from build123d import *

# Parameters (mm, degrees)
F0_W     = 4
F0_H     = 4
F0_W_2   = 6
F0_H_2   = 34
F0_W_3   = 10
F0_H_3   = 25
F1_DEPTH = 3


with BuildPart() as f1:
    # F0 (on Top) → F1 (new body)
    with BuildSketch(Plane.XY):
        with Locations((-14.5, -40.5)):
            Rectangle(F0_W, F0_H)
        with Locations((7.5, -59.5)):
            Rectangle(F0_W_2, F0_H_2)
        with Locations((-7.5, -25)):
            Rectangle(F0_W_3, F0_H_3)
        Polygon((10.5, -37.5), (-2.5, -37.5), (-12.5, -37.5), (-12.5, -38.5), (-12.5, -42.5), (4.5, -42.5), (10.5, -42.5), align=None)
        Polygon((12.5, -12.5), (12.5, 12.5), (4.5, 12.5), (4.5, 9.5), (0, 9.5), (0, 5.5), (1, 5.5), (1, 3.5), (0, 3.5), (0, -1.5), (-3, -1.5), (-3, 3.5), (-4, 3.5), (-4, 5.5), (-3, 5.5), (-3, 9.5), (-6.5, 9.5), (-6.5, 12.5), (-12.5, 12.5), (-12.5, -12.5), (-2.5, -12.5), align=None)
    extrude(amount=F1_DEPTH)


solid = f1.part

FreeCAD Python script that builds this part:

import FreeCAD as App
import Part
import Sketcher

V = App.Vector
Q = App.Units.Quantity

doc = App.newDocument("Part")
body = doc.addObject("PartDesign::Body", "Body")

sketch1 = body.newObject("Sketcher::SketchObject", "Sketch")
sketch1.AttachmentSupport = (doc.getObject("XY_Plane"), [""])
sketch1.MapMode = "FlatFace"
sketch1.addGeometry(Part.LineSegment(V(-16.5, -38.5, 0), V(-16.5, -42.5, 0)), False)
sketch1.addGeometry(Part.LineSegment(V(-16.5, -42.5, 0), V(4.5, -42.5, 0)), False)
sketch1.addGeometry(Part.LineSegment(V(4.5, -42.5, 0), V(4.5, -76.5, 0)), False)
sketch1.addGeometry(Part.LineSegment(V(4.5, -76.5, 0), V(10.5, -76.5, 0)), False)
sketch1.addGeometry(Part.LineSegment(V(10.5, -76.5, 0), V(10.5, -37.5, 0)), False)
sketch1.addGeometry(Part.LineSegment(V(10.5, -37.5, 0), V(-2.5, -37.5, 0)), False)
sketch1.addGeometry(Part.LineSegment(V(-2.5, -37.5, 0), V(-2.5, -12.5, 0)), False)
sketch1.addGeometry(Part.LineSegment(V(-2.5, -12.5, 0), V(12.5, -12.5, 0)), False)
sketch1.addGeometry(Part.LineSegment(V(12.5, -12.5, 0), V(12.5, 12.5, 0)), False)
sketch1.addGeometry(Part.LineSegment(V(12.5, 12.5, 0), V(4.5, 12.5, 0)), False)
sketch1.addGeometry(Part.LineSegment(V(4.5, 12.5, 0), V(4.5, 9.5, 0)), False)
sketch1.addGeometry(Part.LineSegment(V(4.5, 9.5, 0), V(0, 9.5, 0)), False)
sketch1.addGeometry(Part.LineSegment(V(0, 9.5, 0), V(0, 5.5, 0)), False)
sketch1.addGeometry(Part.LineSegment(V(0, 5.5, 0), V(1, 5.5, 0)), False)
sketch1.addGeometry(Part.LineSegment(V(1, 5.5, 0), V(1, 3.5, 0)), False)
sketch1.addGeometry(Part.LineSegment(V(1, 3.5, 0), V(0, 3.5, 0)), False)
sketch1.addGeometry(Part.LineSegment(V(0, 3.5, 0), V(0, -1.5, 0)), False)
sketch1.addGeometry(Part.LineSegment(V(0, -1.5, 0), V(-3, -1.5, 0)), False)
sketch1.addGeometry(Part.LineSegment(V(-3, -1.5, 0), V(-3, 3.5, 0)), False)
sketch1.addGeometry(Part.LineSegment(V(-3, 3.5, 0), V(-4, 3.5, 0)), False)
sketch1.addGeometry(Part.LineSegment(V(-4, 3.5, 0), V(-4, 5.5, 0)), False)
sketch1.addGeometry(Part.LineSegment(V(-4, 5.5, 0), V(-3, 5.5, 0)), False)
sketch1.addGeometry(Part.LineSegment(V(-3, 5.5, 0), V(-3, 9.5, 0)), False)
sketch1.addGeometry(Part.LineSegment(V(-3, 9.5, 0), V(-6.5, 9.5, 0)), False)
sketch1.addGeometry(Part.LineSegment(V(-6.5, 9.5, 0), V(-6.5, 12.5, 0)), False)
sketch1.addGeometry(Part.LineSegment(V(-6.5, 12.5, 0), V(-12.5, 12.5, 0)), False)
sketch1.addGeometry(Part.LineSegment(V(-12.5, 12.5, 0), V(-12.5, -38.5, 0)), False)
sketch1.addGeometry(Part.LineSegment(V(-12.5, -38.5, 0), V(-16.5, -38.5, 0)), False)
sketch1.addConstraint(Sketcher.Constraint("Coincident", 0, 2, 1, 1))
sketch1.addConstraint(Sketcher.Constraint("Coincident", 1, 2, 2, 1))
sketch1.addConstraint(Sketcher.Constraint("Coincident", 2, 2, 3, 1))
sketch1.addConstraint(Sketcher.Constraint("Coincident", 3, 2, 4, 1))
sketch1.addConstraint(Sketcher.Constraint("Coincident", 4, 2, 5, 1))
sketch1.addConstraint(Sketcher.Constraint("Coincident", 5, 2, 6, 1))
sketch1.addConstraint(Sketcher.Constraint("Coincident", 6, 2, 7, 1))
sketch1.addConstraint(Sketcher.Constraint("Coincident", 7, 2, 8, 1))
sketch1.addConstraint(Sketcher.Constraint("Coincident", 8, 2, 9, 1))
sketch1.addConstraint(Sketcher.Constraint("Coincident", 9, 2, 10, 1))
sketch1.addConstraint(Sketcher.Constraint("Coincident", 10, 2, 11, 1))
sketch1.addConstraint(Sketcher.Constraint("Coincident", 11, 2, 12, 1))
sketch1.addConstraint(Sketcher.Constraint("Coincident", 12, 2, 13, 1))
sketch1.addConstraint(Sketcher.Constraint("Coincident", 13, 2, 14, 1))
sketch1.addConstraint(Sketcher.Constraint("Coincident", 14, 2, 15, 1))
sketch1.addConstraint(Sketcher.Constraint("Coincident", 15, 2, 16, 1))
sketch1.addConstraint(Sketcher.Constraint("Coincident", 16, 2, 17, 1))
sketch1.addConstraint(Sketcher.Constraint("Coincident", 17, 2, 18, 1))
sketch1.addConstraint(Sketcher.Constraint("Coincident", 18, 2, 19, 1))
sketch1.addConstraint(Sketcher.Constraint("Coincident", 19, 2, 20, 1))
sketch1.addConstraint(Sketcher.Constraint("Coincident", 20, 2, 21, 1))
sketch1.addConstraint(Sketcher.Constraint("Coincident", 21, 2, 22, 1))
sketch1.addConstraint(Sketcher.Constraint("Coincident", 22, 2, 23, 1))
sketch1.addConstraint(Sketcher.Constraint("Coincident", 23, 2, 24, 1))
sketch1.addConstraint(Sketcher.Constraint("Coincident", 24, 2, 25, 1))
sketch1.addConstraint(Sketcher.Constraint("Coincident", 25, 2, 26, 1))
sketch1.addConstraint(Sketcher.Constraint("Coincident", 26, 2, 27, 1))
sketch1.addConstraint(Sketcher.Constraint("Coincident", 27, 2, 0, 1))
sketch1.addConstraint(Sketcher.Constraint("Vertical", 0))
sketch1.addConstraint(Sketcher.Constraint("Horizontal", 1))
sketch1.addConstraint(Sketcher.Constraint("Vertical", 2))
sketch1.addConstraint(Sketcher.Constraint("Horizontal", 3))
sketch1.addConstraint(Sketcher.Constraint("Vertical", 4))
sketch1.addConstraint(Sketcher.Constraint("Horizontal", 5))
sketch1.addConstraint(Sketcher.Constraint("Vertical", 6))
sketch1.addConstraint(Sketcher.Constraint("Horizontal", 7))
sketch1.addConstraint(Sketcher.Constraint("Vertical", 8))
sketch1.addConstraint(Sketcher.Constraint("Horizontal", 9))
sketch1.addConstraint(Sketcher.Constraint("Vertical", 10))
sketch1.addConstraint(Sketcher.Constraint("Horizontal", 11))
sketch1.addConstraint(Sketcher.Constraint("Vertical", 12))
sketch1.addConstraint(Sketcher.Constraint("Horizontal", 13))
sketch1.addConstraint(Sketcher.Constraint("Vertical", 14))
sketch1.addConstraint(Sketcher.Constraint("Horizontal", 15))
sketch1.addConstraint(Sketcher.Constraint("Vertical", 16))
sketch1.addConstraint(Sketcher.Constraint("Horizontal", 17))
sketch1.addConstraint(Sketcher.Constraint("Vertical", 18))
sketch1.addConstraint(Sketcher.Constraint("Horizontal", 19))
sketch1.addConstraint(Sketcher.Constraint("Vertical", 20))
sketch1.addConstraint(Sketcher.Constraint("Horizontal", 21))
sketch1.addConstraint(Sketcher.Constraint("Vertical", 22))
sketch1.addConstraint(Sketcher.Constraint("Horizontal", 23))
sketch1.addConstraint(Sketcher.Constraint("Vertical", 24))
sketch1.addConstraint(Sketcher.Constraint("Horizontal", 25))
sketch1.addConstraint(Sketcher.Constraint("Vertical", 26))
sketch1.addConstraint(Sketcher.Constraint("Horizontal", 27))
sketch1.addConstraint(Sketcher.Constraint("Symmetric", 7, 2, 25, 2, -1, 1))
sketch1.addConstraint(Sketcher.Constraint("PointOnObject", 11, 2, -2))
sketch1.addConstraint(Sketcher.Constraint("PointOnObject", 15, 2, -2))
sketch1.addConstraint(Sketcher.Constraint("Horizontal", 15, 2, 18, 2))
sketch1.addConstraint(Sketcher.Constraint("Horizontal", 13, 2, 20, 2))
sketch1.addConstraint(Sketcher.Constraint("Horizontal", 11, 2, 22, 2))
sketch1.addConstraint(Sketcher.Constraint("Horizontal", 9, 2, 24, 2))
sketch1.addConstraint(Sketcher.Constraint("Vertical", 2, 2, 9, 2))
sketch1.addConstraint(Sketcher.Constraint("Vertical", 18, 2, 21, 2))
sketch1.addConstraint(Sketcher.Constraint("Equal", 15, 19))
sketch1.addConstraint(Sketcher.Constraint("Equal", 3, 25))
sketch1.addConstraint(Sketcher.Constraint("Equal", 27, 0))
sketch1.addConstraint(Sketcher.Constraint("Equal", 6, 8))
sketch1.addConstraint(Sketcher.Constraint("Equal", 17, 10))
sketch1.addConstraint(Sketcher.Constraint("Equal", 0, 12))
sketch1.addConstraint(Sketcher.Constraint("DistanceX", 1, 1, 1, 2, Q("21 mm")))
sketch1.addConstraint(Sketcher.Constraint("DistanceX", 3, 1, 3, 2, Q("6 mm")))
sketch1.addConstraint(Sketcher.Constraint("DistanceX", 5, 2, 5, 1, Q("13 mm")))
sketch1.addConstraint(Sketcher.Constraint("DistanceX", 7, 1, 7, 2, Q("15 mm")))
sketch1.addConstraint(Sketcher.Constraint("DistanceX", 13, 1, 13, 2, Q("1 mm")))
sketch1.addConstraint(Sketcher.Constraint("DistanceX", 17, 2, 17, 1, Q("3 mm")))
sketch1.addConstraint(Sketcher.Constraint("DistanceX", 27, 2, 27, 1, Q("4 mm")))
sketch1.addConstraint(Sketcher.Constraint("DistanceY", 2, 2, 2, 1, Q("34 mm")))
sketch1.addConstraint(Sketcher.Constraint("DistanceY", 4, 1, 4, 2, Q("39 mm")))
sketch1.addConstraint(Sketcher.Constraint("DistanceY", 6, 1, 6, 2, Q("25 mm")))
sketch1.addConstraint(Sketcher.Constraint("DistanceY", 14, 2, 14, 1, Q("2 mm")))
sketch1.addConstraint(Sketcher.Constraint("DistanceY", 16, 2, 16, 1, Q("5 mm")))
pad1 = body.newObject("PartDesign::Pad", "Pad")
pad1.Profile = sketch1
pad1.Length = 3

doc.recompute()
